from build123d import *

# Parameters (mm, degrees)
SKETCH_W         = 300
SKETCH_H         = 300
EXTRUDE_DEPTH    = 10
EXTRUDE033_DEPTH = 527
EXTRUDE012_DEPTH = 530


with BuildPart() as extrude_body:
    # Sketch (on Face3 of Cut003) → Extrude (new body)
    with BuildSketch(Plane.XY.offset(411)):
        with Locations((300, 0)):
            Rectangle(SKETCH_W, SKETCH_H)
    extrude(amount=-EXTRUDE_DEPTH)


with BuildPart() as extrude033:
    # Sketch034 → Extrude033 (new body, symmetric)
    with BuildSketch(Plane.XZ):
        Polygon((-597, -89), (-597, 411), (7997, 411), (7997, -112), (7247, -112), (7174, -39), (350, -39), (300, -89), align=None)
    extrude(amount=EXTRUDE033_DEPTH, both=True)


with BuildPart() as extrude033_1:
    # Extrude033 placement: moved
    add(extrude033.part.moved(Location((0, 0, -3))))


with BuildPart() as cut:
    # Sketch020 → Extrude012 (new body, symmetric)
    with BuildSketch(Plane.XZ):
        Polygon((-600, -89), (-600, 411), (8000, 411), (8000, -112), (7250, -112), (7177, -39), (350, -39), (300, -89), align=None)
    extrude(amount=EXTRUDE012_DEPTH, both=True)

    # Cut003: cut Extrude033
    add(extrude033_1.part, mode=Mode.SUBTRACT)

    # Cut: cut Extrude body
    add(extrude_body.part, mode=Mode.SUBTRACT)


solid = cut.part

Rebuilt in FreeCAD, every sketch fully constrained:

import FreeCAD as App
import Part
import Sketcher

V = App.Vector
Q = App.Units.Quantity


def add_polygon(sketch, points):
    """Adds a closed chain of lines whose ends are joined by coincident constraints."""
    first, n = sketch.GeometryCount, len(points)
    for a, b in zip(points, points[1:] + points[:1]):
        sketch.addGeometry(Part.LineSegment(App.Vector(*a, 0), App.Vector(*b, 0)), False)
    for i in range(n):
        sketch.addConstraint(Sketcher.Constraint("Coincident", first + i, 2, first + (i + 1) % n, 1))

doc = App.newDocument("Part")
body = doc.addObject("PartDesign::Body", "Body")

sketch1 = body.newObject("Sketcher::SketchObject", "Sketch")
sketch1.AttachmentSupport = (doc.getObject("XY_Plane"), [""])
sketch1.MapMode = "FlatFace"
sketch1.AttachmentOffset = App.Placement(V(0, 0, 411), App.Rotation())
add_polygon(sketch1, [(150, 150), (150, -150), (450, -150), (450, 150)])
sketch1.addConstraint([
    Sketcher.Constraint("Vertical", 0),
    Sketcher.Constraint("Horizontal", 1),
    Sketcher.Constraint("Vertical", 2),
    Sketcher.Constraint("Horizontal", 3),
    Sketcher.Constraint("Equal", 3, 0),
    Sketcher.Constraint("DistanceX", 1, 1, 1, 2, Q("300 mm")),
    Sketcher.Constraint("DistanceX", -1, 1, 0, 2, Q("150 mm")),
    Sketcher.Constraint("DistanceY", 0, 2, -1, 1, Q("150 mm")),
])
pad1 = body.newObject("PartDesign::Pad", "Pad")
pad1.Profile = sketch1
pad1.Length = 10
pad1.Reversed = True
body2 = doc.addObject("PartDesign::Body", "Body001")

sketch2 = body2.newObject("Sketcher::SketchObject", "Sketch001")
sketch2.AttachmentSupport = (doc.getObject("XZ_Plane001"), [""])
sketch2.MapMode = "FlatFace"
add_polygon(sketch2, [(-597, 411), (-597, -89), (300, -89), (350, -39), (7174, -39), (7247, -112), (7997, -112), (7997, 411)])
sketch2.addConstraint([
    Sketcher.Constraint("Vertical", 0),
    Sketcher.Constraint("Horizontal", 1),
    Sketcher.Constraint("Horizontal", 3),
    Sketcher.Constraint("Horizontal", 5),
    Sketcher.Constraint("Vertical", 6),
    Sketcher.Constraint("Horizontal", 7),
    Sketcher.Constraint("Perpendicular", 2, 4),
    Sketcher.Constraint("DistanceX", 1, 1, 1, 2, Q("897 mm")),
    Sketcher.Constraint("DistanceX", 3, 1, 3, 2, Q("6824 mm")),
    Sketcher.Constraint("DistanceX", 5, 1, 5, 2, Q("750 mm")),
    Sketcher.Constraint("DistanceX", 7, 2, 7, 1, Q("8594 mm")),
    Sketcher.Constraint("DistanceY", 0, 2, 0, 1, Q("500 mm")),
    Sketcher.Constraint("DistanceY", 6, 1, 6, 2, Q("523 mm")),
    Sketcher.Constraint("Angle", 2, Q("45 deg")),
    Sketcher.Constraint("DistanceX", 0, 2, -1, 1, Q("597 mm")),
    Sketcher.Constraint("DistanceY", 0, 2, -1, 1, Q("89 mm")),
])
pad2 = body2.newObject("PartDesign::Pad", "Pad001")
pad2.Profile = sketch2
pad2.Length = 1054
pad2.Midplane = True
body3 = doc.addObject("PartDesign::Body", "Body002")
doc.recompute()

body2.Placement = App.Placement(V(0, 0, -3), App.Rotation(V(0, 0, 1), 0))
boolean = body3.newObject("PartDesign::Boolean", "Boolean")
boolean.Type = "Fuse"
boolean.addObjects([body2])
body4 = doc.addObject("PartDesign::Body", "Body003")

sketch3 = body4.newObject("Sketcher::SketchObject", "Sketch002")
sketch3.AttachmentSupport = (doc.getObject("XZ_Plane003"), [""])
sketch3.MapMode = "FlatFace"
add_polygon(sketch3, [(-600, 411), (-600, -89), (300, -89), (350, -39), (7177, -39), (7250, -112), (8000, -112), (8000, 411)])
sketch3.addConstraint([
    Sketcher.Constraint("Vertical", 0),
    Sketcher.Constraint("Horizontal", 1),
    Sketcher.Constraint("Horizontal", 3),
    Sketcher.Constraint("Horizontal", 5),
    Sketcher.Constraint("Vertical", 6),
    Sketcher.Constraint("Horizontal", 7),
    Sketcher.Constraint("Perpendicular", 2, 4),
    Sketcher.Constraint("DistanceX", 1, 1, 1, 2, Q("900 mm")),
    Sketcher.Constraint("DistanceX", 3, 1, 3, 2, Q("6827 mm")),
    Sketcher.Constraint("DistanceX", 5, 1, 5, 2, Q("750 mm")),
    Sketcher.Constraint("DistanceX", 7, 2, 7, 1, Q("8600 mm")),
    Sketcher.Constraint("DistanceY", 0, 2, 0, 1, Q("500 mm")),
    Sketcher.Constraint("DistanceY", 6, 1, 6, 2, Q("523 mm")),
    Sketcher.Constraint("Angle", 2, Q("45 deg")),
    Sketcher.Constraint("DistanceX", 0, 2, -1, 1, Q("600 mm")),
    Sketcher.Constraint("DistanceY", 0, 2, -1, 1, Q("89 mm")),
])
pad3 = body4.newObject("PartDesign::Pad", "Pad002")
pad3.Profile = sketch3
pad3.Length = 1060
pad3.Midplane = True
doc.recompute()

boolean2 = body4.newObject("PartDesign::Boolean", "Boolean001")
boolean2.Type = "Cut"
boolean2.addObjects([body3])
doc.recompute()

boolean3 = body4.newObject("PartDesign::Boolean", "Boolean002")
boolean3.Type = "Cut"
boolean3.addObjects([body])

doc.recompute()
